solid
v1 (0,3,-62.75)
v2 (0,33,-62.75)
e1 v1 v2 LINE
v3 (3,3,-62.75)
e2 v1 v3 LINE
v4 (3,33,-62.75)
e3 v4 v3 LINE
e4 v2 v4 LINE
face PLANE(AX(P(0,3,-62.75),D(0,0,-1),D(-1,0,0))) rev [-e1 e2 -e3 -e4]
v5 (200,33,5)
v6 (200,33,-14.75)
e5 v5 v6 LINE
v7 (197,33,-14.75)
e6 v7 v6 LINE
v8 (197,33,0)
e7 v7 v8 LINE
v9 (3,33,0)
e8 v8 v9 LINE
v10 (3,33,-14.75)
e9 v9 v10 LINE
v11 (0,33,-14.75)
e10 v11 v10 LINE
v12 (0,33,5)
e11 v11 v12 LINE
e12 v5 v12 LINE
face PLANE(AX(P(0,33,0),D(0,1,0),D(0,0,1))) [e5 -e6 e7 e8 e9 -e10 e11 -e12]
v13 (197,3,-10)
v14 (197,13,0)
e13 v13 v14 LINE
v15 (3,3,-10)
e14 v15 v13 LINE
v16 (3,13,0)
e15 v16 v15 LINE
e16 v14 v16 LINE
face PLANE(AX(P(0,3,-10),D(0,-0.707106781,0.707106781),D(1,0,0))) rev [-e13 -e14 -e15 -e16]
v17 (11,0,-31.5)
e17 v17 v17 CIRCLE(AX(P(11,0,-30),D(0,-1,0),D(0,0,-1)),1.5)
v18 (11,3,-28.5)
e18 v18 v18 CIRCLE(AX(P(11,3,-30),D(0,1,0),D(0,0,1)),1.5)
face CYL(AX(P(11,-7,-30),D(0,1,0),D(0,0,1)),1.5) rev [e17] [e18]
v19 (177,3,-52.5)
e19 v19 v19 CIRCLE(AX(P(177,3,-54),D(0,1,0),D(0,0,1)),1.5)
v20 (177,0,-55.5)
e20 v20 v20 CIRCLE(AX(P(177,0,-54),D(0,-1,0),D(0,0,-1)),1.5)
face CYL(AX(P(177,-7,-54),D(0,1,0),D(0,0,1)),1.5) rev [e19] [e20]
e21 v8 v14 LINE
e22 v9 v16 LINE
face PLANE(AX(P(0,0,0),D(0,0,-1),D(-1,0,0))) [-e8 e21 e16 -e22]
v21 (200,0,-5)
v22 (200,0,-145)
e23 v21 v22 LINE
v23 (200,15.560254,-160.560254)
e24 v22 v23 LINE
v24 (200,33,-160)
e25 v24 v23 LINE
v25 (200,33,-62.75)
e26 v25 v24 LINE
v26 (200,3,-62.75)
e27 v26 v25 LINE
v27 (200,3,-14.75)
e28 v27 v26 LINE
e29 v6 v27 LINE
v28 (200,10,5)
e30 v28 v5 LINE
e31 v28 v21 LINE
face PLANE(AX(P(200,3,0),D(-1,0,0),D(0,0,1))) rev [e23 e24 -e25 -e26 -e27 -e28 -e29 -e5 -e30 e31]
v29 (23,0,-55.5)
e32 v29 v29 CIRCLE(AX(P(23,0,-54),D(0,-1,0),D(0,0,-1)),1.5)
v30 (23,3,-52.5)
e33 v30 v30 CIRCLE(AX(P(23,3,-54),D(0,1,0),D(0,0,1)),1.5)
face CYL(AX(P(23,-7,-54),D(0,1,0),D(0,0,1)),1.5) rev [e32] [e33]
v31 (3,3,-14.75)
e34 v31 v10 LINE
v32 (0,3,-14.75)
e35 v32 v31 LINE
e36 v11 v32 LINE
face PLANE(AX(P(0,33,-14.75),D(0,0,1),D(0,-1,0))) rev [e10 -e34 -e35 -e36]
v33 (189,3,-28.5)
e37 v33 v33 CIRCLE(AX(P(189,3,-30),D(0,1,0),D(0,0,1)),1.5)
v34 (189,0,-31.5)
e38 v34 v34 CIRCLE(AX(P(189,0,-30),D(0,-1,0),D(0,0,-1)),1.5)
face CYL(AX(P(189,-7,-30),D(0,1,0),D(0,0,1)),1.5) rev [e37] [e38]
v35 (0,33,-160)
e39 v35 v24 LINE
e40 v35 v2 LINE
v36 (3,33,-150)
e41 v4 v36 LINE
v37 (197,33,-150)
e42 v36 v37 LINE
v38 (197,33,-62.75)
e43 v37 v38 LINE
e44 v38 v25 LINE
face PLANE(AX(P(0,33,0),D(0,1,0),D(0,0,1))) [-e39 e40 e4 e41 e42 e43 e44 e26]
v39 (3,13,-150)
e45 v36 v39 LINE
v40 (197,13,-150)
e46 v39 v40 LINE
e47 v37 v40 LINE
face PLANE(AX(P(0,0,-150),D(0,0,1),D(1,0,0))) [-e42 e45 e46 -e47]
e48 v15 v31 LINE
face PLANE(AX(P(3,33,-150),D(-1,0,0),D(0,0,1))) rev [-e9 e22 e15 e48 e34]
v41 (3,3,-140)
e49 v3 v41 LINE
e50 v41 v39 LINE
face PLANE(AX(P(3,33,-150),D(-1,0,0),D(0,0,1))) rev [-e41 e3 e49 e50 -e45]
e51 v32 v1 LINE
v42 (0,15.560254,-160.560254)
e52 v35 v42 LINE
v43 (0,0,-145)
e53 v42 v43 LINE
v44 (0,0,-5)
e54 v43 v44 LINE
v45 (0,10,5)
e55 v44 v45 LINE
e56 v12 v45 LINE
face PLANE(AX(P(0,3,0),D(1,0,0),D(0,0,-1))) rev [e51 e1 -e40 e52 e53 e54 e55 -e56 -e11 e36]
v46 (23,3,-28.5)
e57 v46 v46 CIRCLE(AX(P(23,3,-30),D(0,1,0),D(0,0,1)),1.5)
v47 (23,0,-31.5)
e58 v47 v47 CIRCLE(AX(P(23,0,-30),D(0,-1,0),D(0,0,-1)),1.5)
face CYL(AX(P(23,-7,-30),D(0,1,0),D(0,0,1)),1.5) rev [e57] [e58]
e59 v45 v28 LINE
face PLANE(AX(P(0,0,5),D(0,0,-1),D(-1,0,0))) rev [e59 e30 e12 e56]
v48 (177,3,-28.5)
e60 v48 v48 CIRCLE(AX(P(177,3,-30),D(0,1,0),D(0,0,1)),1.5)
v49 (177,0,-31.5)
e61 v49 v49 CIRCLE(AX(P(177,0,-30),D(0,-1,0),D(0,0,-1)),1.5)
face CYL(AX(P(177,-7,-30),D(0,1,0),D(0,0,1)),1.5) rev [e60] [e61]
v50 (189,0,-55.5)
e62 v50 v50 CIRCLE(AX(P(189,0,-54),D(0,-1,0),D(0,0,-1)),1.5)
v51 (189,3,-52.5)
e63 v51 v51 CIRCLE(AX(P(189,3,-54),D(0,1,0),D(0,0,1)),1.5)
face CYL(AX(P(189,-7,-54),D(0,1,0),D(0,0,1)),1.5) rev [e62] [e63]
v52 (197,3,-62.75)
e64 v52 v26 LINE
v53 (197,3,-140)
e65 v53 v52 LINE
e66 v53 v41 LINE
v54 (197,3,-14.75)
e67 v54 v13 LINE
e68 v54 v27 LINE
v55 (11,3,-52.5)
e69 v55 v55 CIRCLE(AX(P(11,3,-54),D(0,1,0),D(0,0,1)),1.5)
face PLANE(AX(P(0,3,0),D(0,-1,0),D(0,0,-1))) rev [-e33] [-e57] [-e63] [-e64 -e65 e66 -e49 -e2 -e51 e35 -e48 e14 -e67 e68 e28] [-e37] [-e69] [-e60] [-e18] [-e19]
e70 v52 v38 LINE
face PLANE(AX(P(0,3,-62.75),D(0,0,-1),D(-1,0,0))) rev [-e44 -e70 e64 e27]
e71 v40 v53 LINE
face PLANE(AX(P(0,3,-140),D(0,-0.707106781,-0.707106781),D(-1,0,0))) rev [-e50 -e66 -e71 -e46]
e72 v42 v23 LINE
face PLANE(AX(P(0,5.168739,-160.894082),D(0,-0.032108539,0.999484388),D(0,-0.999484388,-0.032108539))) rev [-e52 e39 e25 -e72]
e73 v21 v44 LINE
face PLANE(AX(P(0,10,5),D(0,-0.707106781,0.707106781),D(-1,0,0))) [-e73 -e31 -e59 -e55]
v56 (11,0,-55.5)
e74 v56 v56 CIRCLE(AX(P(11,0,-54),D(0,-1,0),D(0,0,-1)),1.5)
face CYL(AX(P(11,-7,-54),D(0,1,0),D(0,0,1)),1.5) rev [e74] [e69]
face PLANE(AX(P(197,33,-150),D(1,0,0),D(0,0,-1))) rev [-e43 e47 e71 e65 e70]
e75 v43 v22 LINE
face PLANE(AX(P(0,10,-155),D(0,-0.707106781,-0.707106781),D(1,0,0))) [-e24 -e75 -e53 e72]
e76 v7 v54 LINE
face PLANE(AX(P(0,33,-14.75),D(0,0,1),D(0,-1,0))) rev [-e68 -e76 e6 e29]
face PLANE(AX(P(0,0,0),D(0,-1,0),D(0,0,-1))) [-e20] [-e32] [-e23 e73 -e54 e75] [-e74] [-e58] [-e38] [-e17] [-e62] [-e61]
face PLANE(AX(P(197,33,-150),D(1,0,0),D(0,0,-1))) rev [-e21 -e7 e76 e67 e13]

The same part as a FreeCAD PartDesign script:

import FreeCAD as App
import Part
import Sketcher
from FreeCAD import Vector
Q = App.Units.Quantity


def edges_at(feature, points):
    """Names of the edges that pass closest to the given points."""
    edges = feature.Shape.Edges
    near = lambda p: min(range(len(edges)), key=lambda i: edges[i].distToShape(Part.Vertex(*p))[0])
    return sorted({f"Edge{near(p) + 1}" for p in points})


def add_polygon(sketch, points):
    """Adds a closed chain of lines whose ends are joined by coincident constraints."""
    first, n = sketch.GeometryCount, len(points)
    for a, b in zip(points, points[1:] + points[:1]):
        sketch.addGeometry(Part.LineSegment(App.Vector(*a, 0), App.Vector(*b, 0)), False)
    for i in range(n):
        sketch.addConstraint(Sketcher.Constraint("Coincident", first + i, 2, first + (i + 1) % n, 1))

doc = App.newDocument("Part")
params = doc.addObject("Spreadsheet::Sheet", "Params")
for row, (alias, value) in enumerate([
    ("sketch1_width", "200 mm"),
    ("sketch1_height", "150 mm"),
    ("pad1_length", "3 mm"),
    ("sketch2_width", "3 mm"),
    ("sketch2_height", "150 mm"),
    ("pad2_length", "30 mm"),
    ("sketch3_width", "200 mm"),
    ("sketch3_height", "33 mm"),
    ("pad3_length", "5 mm"),
    ("sketch4_width", "200 mm"),
    ("sketch4_height", "33 mm"),
    ("pad4_length", "5 mm"),
    ("chamfer_size", "10 mm"),
    ("chamfer2_size", "10 mm"),
    ("sketch5_diameter", "3 mm"),
    ("pocket1_length", "10 mm"),
    ("sketch6_width", "30 mm"),
    ("sketch6_height", "48 mm"),
    ("pocket2_length", "200 mm"),
    ("sketch7_width", "23 mm"),
    ("sketch7_height", "5 mm"),
    ("pad5_length", "200 mm"),
], start=1):
    params.set(f"A{row}", alias)
    params.set(f"B{row}", "=" + value)
    params.setAlias(f"B{row}", alias)

body = doc.addObject("PartDesign::Body", "Body")

sketch1 = body.newObject("Sketcher::SketchObject", "Sketch")
sketch1.AttachmentSupport = (doc.getObject("XZ_Plane"), [""])
sketch1.MapMode = "FlatFace"
add_polygon(sketch1, [(0, -150), (0, 0), (200, 0), (200, -150)])
sketch1.addConstraint(Sketcher.Constraint("Vertical", 0))
sketch1.addConstraint(Sketcher.Constraint("Horizontal", 1))
sketch1.addConstraint(Sketcher.Constraint("Vertical", 2))
sketch1.addConstraint(Sketcher.Constraint("Horizontal", 3))
sketch1.addConstraint(Sketcher.Constraint("Coincident", 0, 2, -1, 1))
sketch1.addConstraint(Sketcher.Constraint("DistanceX", 1, 1, 1, 2, Q("200 mm")))
sketch1.addConstraint(Sketcher.Constraint("DistanceY", 0, 1, 0, 2, Q("150 mm")))
sketch1.setExpression("Constraints[9]", "Params.sketch1_width")
sketch1.setExpression("Constraints[10]", "Params.sketch1_height")
pad1 = body.newObject("PartDesign::Pad", "Pad")
pad1.Profile = sketch1
pad1.setExpression("Length", "Params.pad1_length")
pad1.Reversed = True

sketch2 = body.newObject("Sketcher::SketchObject", "Sketch001")
sketch2.AttachmentSupport = (doc.getObject("XZ_Plane"), [""])
sketch2.MapMode = "FlatFace"
sketch2.AttachmentOffset = App.Placement(Vector(0, 0, -3), App.Rotation())
add_polygon(sketch2, [(0, -150), (0, 0), (3, 0), (3, -150)])
add_polygon(sketch2, [(197, -150), (197, 0), (200, 0), (200, -150)])
sketch2.addConstraint(Sketcher.Constraint("Vertical", 0))
sketch2.addConstraint(Sketcher.Constraint("Horizontal", 1))
sketch2.addConstraint(Sketcher.Constraint("Vertical", 2))
sketch2.addConstraint(Sketcher.Constraint("Horizontal", 3))
sketch2.addConstraint(Sketcher.Constraint("Vertical", 4))
sketch2.addConstraint(Sketcher.Constraint("Horizontal", 5))
sketch2.addConstraint(Sketcher.Constraint("Vertical", 6))
sketch2.addConstraint(Sketcher.Constraint("Horizontal", 7))
sketch2.addConstraint(Sketcher.Constraint("Coincident", 0, 2, -1, 1))
sketch2.addConstraint(Sketcher.Constraint("PointOnObject", 4, 2, -1))
sketch2.addConstraint(Sketcher.Constraint("Horizontal", 3, 2, 6, 2))
sketch2.addConstraint(Sketcher.Constraint("Equal", 3, 5))
sketch2.addConstraint(Sketcher.Constraint("DistanceX", 1, 1, 1, 2, Q("3 mm")))
sketch2.addConstraint(Sketcher.Constraint("DistanceY", 0, 1, 0, 2, Q("150 mm")))
sketch2.addConstraint(Sketcher.Constraint("DistanceX", -1, 1, 4, 2, Q("197 mm")))
sketch2.setExpression("Constraints[20]", "Params.sketch2_width")
sketch2.setExpression("Constraints[21]", "Params.sketch2_height")
pad2 = body.newObject("PartDesign::Pad", "Pad001")
pad2.Profile = sketch2
pad2.setExpression("Length", "Params.pad2_length")
pad2.Reversed = True

sketch3 = body.newObject("Sketcher::SketchObject", "Sketch002")
sketch3.AttachmentSupport = (doc.getObject("XY_Plane"), [""])
sketch3.MapMode = "FlatFace"
add_polygon(sketch3, [(200, 33), (0, 33), (0, 0), (200, 0)])
sketch3.addConstraint(Sketcher.Constraint("Horizontal", 0))
sketch3.addConstraint(Sketcher.Constraint("Vertical", 1))
sketch3.addConstraint(Sketcher.Constraint("Horizontal", 2))
sketch3.addConstraint(Sketcher.Constraint("Vertical", 3))
sketch3.addConstraint(Sketcher.Constraint("Coincident", 1, 2, -1, 1))
sketch3.addConstraint(Sketcher.Constraint("DistanceX", 0, 2, 0, 1, Q("200 mm")))
sketch3.addConstraint(Sketcher.Constraint("DistanceY", 1, 2, 1, 1, Q("33 mm")))
sketch3.setExpression("Constraints[9]", "Params.sketch3_width")
sketch3.setExpression("Constraints[10]", "Params.sketch3_height")
pad3 = body.newObject("PartDesign::Pad", "Pad002")
pad3.Profile = sketch3
pad3.setExpression("Length", "Params.pad3_length")

sketch4 = body.newObject("Sketcher::SketchObject", "Sketch003")
sketch4.AttachmentSupport = (doc.getObject("XY_Plane"), [""])
sketch4.MapMode = "FlatFace"
sketch4.AttachmentOffset = App.Placement(Vector(0, 0, -150), App.Rotation())
add_polygon(sketch4, [(200, 33), (200, 0), (0, 0), (0, 33)])
sketch4.addConstraint(Sketcher.Constraint("Vertical", 0))
sketch4.addConstraint(Sketcher.Constraint("Horizontal", 1))
sketch4.addConstraint(Sketcher.Constraint("Vertical", 2))
sketch4.addConstraint(Sketcher.Constraint("Horizontal", 3))
sketch4.addConstraint(Sketcher.Constraint("Coincident", 1, 2, -1, 1))
sketch4.addConstraint(Sketcher.Constraint("DistanceX", 1, 2, 1, 1, Q("200 mm")))
sketch4.addConstraint(Sketcher.Constraint("DistanceY", 0, 2, 0, 1, Q("33 mm")))
sketch4.setExpression("Constraints[9]", "Params.sketch4_width")
sketch4.setExpression("Constraints[10]", "Params.sketch4_height")
pad4 = body.newObject("PartDesign::Pad", "Pad003")
pad4.Profile = sketch4
pad4.setExpression("Length", "Params.pad4_length")
pad4.Reversed = True
doc.recompute()

chamfer = body.newObject("PartDesign::Chamfer", "Chamfer")
chamfer.Base = (pad4, edges_at(pad4, [(100, 0, 5), (100, 0, -155)]))
chamfer.setExpression("Size", "Params.chamfer_size")
doc.recompute()

chamfer2 = body.newObject("PartDesign::Chamfer", "Chamfer001")
chamfer2.Base = (chamfer, edges_at(chamfer, [(100, 3, 0), (100, 3, -150)]))
chamfer2.setExpression("Size", "Params.chamfer2_size")

sketch5 = body.newObject("Sketcher::SketchObject", "Sketch004")
sketch5.AttachmentSupport = (doc.getObject("XZ_Plane"), [""])
sketch5.MapMode = "FlatFace"
sketch5.AttachmentOffset = App.Placement(Vector(0, 0, -3), App.Rotation())
sketch5.addGeometry(Part.Circle(Vector(189, -30, 0), Vector(0, 0, 1), 1.5), False)
sketch5.addGeometry(Part.Circle(Vector(177, -30, 0), Vector(0, 0, 1), 1.5), False)
sketch5.addGeometry(Part.Circle(Vector(189, -54, 0), Vector(0, 0, 1), 1.5), False)
sketch5.addGeometry(Part.Circle(Vector(177, -54, 0), Vector(0, 0, 1), 1.5), False)
sketch5.addGeometry(Part.Circle(Vector(23, -30, 0), Vector(0, 0, 1), 1.5), False)
sketch5.addGeometry(Part.Circle(Vector(11, -30, 0), Vector(0, 0, 1), 1.5), False)
sketch5.addGeometry(Part.Circle(Vector(23, -54, 0), Vector(0, 0, 1), 1.5), False)
sketch5.addGeometry(Part.Circle(Vector(11, -54, 0), Vector(0, 0, 1), 1.5), False)
sketch5.addConstraint(Sketcher.Constraint("Equal", 0, 1))
sketch5.addConstraint(Sketcher.Constraint("Equal", 1, 2))
sketch5.addConstraint(Sketcher.Constraint("Equal", 2, 3))
sketch5.addConstraint(Sketcher.Constraint("Equal", 3, 4))
sketch5.addConstraint(Sketcher.Constraint("Equal", 4, 5))
sketch5.addConstraint(Sketcher.Constraint("Equal", 5, 6))
sketch5.addConstraint(Sketcher.Constraint("Equal", 6, 7))
sketch5.addConstraint(Sketcher.Constraint("Horizontal", 0, 3, 1, 3))
sketch5.addConstraint(Sketcher.Constraint("Horizontal", 2, 3, 3, 3))
sketch5.addConstraint(Sketcher.Constraint("Horizontal", 1, 3, 4, 3))
sketch5.addConstraint(Sketcher.Constraint("Horizontal", 4, 3, 5, 3))
sketch5.addConstraint(Sketcher.Constraint("Horizontal", 3, 3, 6, 3))
sketch5.addConstraint(Sketcher.Constraint("Horizontal", 6, 3, 7, 3))
sketch5.addConstraint(Sketcher.Constraint("Vertical", 0, 3, 2, 3))
sketch5.addConstraint(Sketcher.Constraint("Vertical", 1, 3, 3, 3))
sketch5.addConstraint(Sketcher.Constraint("Vertical", 4, 3, 6, 3))
sketch5.addConstraint(Sketcher.Constraint("Vertical", 5, 3, 7, 3))
sketch5.addConstraint(Sketcher.Constraint("Diameter", 0, Q("3 mm")))
sketch5.addConstraint(Sketcher.Constraint("DistanceX", -1, 1, 0, 3, Q("189 mm")))
sketch5.addConstraint(Sketcher.Constraint("DistanceY", 0, 3, -1, 1, Q("30 mm")))
sketch5.addConstraint(Sketcher.Constraint("DistanceX", -1, 1, 1, 3, Q("177 mm")))
sketch5.addConstraint(Sketcher.Constraint("DistanceY", 2, 3, -1, 1, Q("54 mm")))
sketch5.addConstraint(Sketcher.Constraint("DistanceX", -1, 1, 4, 3, Q("23 mm")))
sketch5.addConstraint(Sketcher.Constraint("DistanceX", -1, 1, 5, 3, Q("11 mm")))
sketch5.setExpression("Constraints[17]", "Params.sketch5_diameter")
pocket1 = body.newObject("PartDesign::Pocket", "Pocket")
pocket1.Profile = sketch5
pocket1.setExpression("Length", "Params.pocket1_length")
pocket1.Reversed = True

sketch6 = body.newObject("Sketcher::SketchObject", "Sketch005")
sketch6.AttachmentSupport = (doc.getObject("YZ_Plane"), [""])
sketch6.MapMode = "FlatFace"
sketch6.AttachmentOffset = App.Placement(Vector(0, 0, 200), App.Rotation())
add_polygon(sketch6, [(33, -15), (3, -15), (3, -63), (33, -63)])
sketch6.addConstraint(Sketcher.Constraint("Horizontal", 0))
sketch6.addConstraint(Sketcher.Constraint("Vertical", 1))
sketch6.addConstraint(Sketcher.Constraint("Horizontal", 2))
sketch6.addConstraint(Sketcher.Constraint("Vertical", 3))
sketch6.addConstraint(Sketcher.Constraint("DistanceX", 0, 2, 0, 1, Q("30 mm")))
sketch6.addConstraint(Sketcher.Constraint("DistanceY", 1, 2, 1, 1, Q("48 mm")))
sketch6.addConstraint(Sketcher.Constraint("DistanceX", -1, 1, 0, 2, Q("3 mm")))
sketch6.addConstraint(Sketcher.Constraint("DistanceY", 0, 2, -1, 1, Q("14.75 mm")))
sketch6.setExpression("Constraints[8]", "Params.sketch6_width")
sketch6.setExpression("Constraints[9]", "Params.sketch6_height")
pocket2 = body.newObject("PartDesign::Pocket", "Pocket001")
pocket2.Profile = sketch6
pocket2.setExpression("Length", "Params.pocket2_length")

sketch7 = body.newObject("Sketcher::SketchObject", "Sketch006")
sketch7.AttachmentSupport = (doc.getObject("YZ_Plane"), [""])
sketch7.MapMode = "FlatFace"
sketch7.AttachmentOffset = App.Placement(Vector(0, 0, 200), App.Rotation())
add_polygon(sketch7, [(10, -155), (16, -161), (33, -160), (33, -155)])
sketch7.addConstraint(Sketcher.Constraint("Vertical", 2))
sketch7.addConstraint(Sketcher.Constraint("Horizontal", 3))
sketch7.addConstraint(Sketcher.Constraint("DistanceX", 3, 2, 3, 1, Q("23 mm")))
sketch7.addConstraint(Sketcher.Constraint("DistanceY", 2, 1, 2, 2, Q("5 mm")))
sketch7.addConstraint(Sketcher.Constraint("Angle", 0, Q("-45 deg")))
sketch7.addConstraint(Sketcher.Constraint("DistanceX", -1, 1, 1, 2, Q("33 mm")))
sketch7.addConstraint(Sketcher.Constraint("DistanceY", 1, 2, -1, 1, Q("160 mm")))
sketch7.addConstraint(Sketcher.Constraint("Angle", 1, Q("1.84 deg")))
sketch7.setExpression("Constraints[6]", "Params.sketch7_width")
sketch7.setExpression("Constraints[7]", "Params.sketch7_height")
pad5 = body.newObject("PartDesign::Pad", "Pad004")
pad5.Profile = sketch7
pad5.setExpression("Length", "Params.pad5_length")
pad5.Reversed = True

doc.recompute()
